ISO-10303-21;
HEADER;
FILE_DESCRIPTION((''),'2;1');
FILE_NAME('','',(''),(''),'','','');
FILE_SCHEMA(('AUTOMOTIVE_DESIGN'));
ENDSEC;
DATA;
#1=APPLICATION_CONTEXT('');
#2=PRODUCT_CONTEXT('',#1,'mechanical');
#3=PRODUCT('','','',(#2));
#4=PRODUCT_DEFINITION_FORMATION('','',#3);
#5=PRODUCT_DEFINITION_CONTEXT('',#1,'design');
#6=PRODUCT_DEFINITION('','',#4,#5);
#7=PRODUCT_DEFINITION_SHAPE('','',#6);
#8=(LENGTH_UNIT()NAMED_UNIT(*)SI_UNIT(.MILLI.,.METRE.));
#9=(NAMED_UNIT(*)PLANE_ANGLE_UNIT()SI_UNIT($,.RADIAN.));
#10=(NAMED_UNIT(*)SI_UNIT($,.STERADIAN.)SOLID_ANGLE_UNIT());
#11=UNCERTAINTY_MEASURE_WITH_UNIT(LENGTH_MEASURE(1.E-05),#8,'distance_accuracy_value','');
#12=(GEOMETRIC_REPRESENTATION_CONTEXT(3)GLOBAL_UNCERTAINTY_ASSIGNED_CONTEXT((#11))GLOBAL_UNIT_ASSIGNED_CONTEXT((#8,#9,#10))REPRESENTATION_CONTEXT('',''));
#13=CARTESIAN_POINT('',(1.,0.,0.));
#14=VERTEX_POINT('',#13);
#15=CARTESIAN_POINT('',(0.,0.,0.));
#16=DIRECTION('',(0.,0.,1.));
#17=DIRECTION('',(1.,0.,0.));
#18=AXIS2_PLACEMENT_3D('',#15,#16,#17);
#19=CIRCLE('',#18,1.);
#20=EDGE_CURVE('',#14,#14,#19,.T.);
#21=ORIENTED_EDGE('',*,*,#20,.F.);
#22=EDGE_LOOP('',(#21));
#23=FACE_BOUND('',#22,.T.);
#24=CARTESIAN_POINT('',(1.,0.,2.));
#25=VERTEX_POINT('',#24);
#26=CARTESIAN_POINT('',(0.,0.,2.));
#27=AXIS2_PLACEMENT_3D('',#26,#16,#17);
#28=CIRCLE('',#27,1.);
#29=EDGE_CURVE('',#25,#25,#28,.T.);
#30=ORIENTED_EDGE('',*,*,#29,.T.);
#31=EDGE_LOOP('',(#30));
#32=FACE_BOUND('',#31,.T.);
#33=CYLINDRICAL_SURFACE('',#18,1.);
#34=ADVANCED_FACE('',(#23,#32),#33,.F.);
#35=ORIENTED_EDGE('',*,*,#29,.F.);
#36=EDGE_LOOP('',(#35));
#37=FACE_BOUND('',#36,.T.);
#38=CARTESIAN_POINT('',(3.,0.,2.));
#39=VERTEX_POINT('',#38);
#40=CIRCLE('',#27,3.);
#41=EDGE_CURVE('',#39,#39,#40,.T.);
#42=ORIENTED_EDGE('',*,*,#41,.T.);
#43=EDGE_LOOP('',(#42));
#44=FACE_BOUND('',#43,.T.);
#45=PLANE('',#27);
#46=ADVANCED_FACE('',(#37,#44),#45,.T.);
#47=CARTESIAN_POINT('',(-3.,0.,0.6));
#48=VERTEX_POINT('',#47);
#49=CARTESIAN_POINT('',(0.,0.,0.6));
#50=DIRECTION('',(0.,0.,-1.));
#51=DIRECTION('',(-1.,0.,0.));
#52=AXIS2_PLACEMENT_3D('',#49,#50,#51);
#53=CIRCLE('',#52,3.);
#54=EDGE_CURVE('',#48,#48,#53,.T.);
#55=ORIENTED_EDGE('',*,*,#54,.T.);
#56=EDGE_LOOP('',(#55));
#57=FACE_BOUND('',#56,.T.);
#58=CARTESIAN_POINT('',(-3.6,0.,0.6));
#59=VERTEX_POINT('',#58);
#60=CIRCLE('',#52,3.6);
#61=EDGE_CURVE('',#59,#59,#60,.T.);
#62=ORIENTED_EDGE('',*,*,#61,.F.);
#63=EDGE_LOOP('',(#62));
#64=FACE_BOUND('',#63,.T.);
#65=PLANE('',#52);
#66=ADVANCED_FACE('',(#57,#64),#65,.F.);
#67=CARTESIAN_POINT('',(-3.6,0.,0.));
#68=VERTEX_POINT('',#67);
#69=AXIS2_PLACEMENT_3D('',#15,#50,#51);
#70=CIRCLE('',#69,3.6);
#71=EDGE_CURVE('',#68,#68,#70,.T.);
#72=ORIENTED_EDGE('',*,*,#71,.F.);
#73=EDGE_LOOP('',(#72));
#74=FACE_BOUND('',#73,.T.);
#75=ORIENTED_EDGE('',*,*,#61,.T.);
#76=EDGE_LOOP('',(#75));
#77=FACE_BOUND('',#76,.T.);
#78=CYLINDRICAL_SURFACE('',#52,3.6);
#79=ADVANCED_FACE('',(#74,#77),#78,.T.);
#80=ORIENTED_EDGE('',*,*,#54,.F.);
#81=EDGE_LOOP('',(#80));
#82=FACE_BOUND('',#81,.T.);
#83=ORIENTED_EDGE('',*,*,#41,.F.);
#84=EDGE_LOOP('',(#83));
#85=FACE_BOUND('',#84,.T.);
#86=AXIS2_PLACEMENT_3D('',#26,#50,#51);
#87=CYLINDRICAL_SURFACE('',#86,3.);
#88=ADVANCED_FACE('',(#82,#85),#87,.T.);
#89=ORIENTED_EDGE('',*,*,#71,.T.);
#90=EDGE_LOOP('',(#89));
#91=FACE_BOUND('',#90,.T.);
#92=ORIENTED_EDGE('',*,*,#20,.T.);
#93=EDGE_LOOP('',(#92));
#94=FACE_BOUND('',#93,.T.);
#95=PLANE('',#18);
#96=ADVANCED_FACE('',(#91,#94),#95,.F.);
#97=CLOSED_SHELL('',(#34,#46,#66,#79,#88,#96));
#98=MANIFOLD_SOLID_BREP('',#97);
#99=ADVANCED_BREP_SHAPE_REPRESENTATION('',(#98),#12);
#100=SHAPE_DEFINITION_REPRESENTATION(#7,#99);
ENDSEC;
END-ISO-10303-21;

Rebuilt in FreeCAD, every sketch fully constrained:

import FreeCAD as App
import Part
import Sketcher

V = App.Vector
Q = App.Units.Quantity

doc = App.newDocument("Part")
params = doc.addObject("Spreadsheet::Sheet", "Params")
for row, (alias, value) in enumerate([
    ("sketch1_diameter", "6 mm"),
    ("pad1_length", "2 mm"),
    ("sketch2_diameter", "7.2 mm"),
    ("pad2_length", "0.6 mm"),
    ("sketch3_diameter", "2 mm"),
], start=1):
    params.set(f"A{row}", alias)
    params.set(f"B{row}", "=" + value)
    params.setAlias(f"B{row}", alias)

body = doc.addObject("PartDesign::Body", "Body")

# Sketch on XY plane
sketch1 = doc.addObject("Sketcher::SketchObject", "Sketch")
body.addObject(sketch1)
sketch1.AttachmentSupport = (doc.XY_Plane, [""])
sketch1.MapMode = "FlatFace"
sketch1.addGeometry(Part.Circle(V(0, 0, 0), V(0, 0, 1), 3), False)
sketch1.addConstraint([
    Sketcher.Constraint("Coincident", 0, 3, -1, 1),
    Sketcher.Constraint("Diameter", 0, Q("6 mm")),
])
sketch1.setExpression("Constraints[1]", "Params.sketch1_diameter")
pad1 = doc.addObject("PartDesign::Pad", "Pad")
body.addObject(pad1)
pad1.Profile = sketch1
pad1.setExpression("Length", "Params.pad1_length")

# Sketch on XY plane
sketch2 = doc.addObject("Sketcher::SketchObject", "Sketch001")
body.addObject(sketch2)
sketch2.AttachmentSupport = (doc.XY_Plane, [""])
sketch2.MapMode = "FlatFace"
sketch2.addGeometry(Part.Circle(V(0, 0, 0), V(0, 0, 1), 3.6), False)
sketch2.addConstraint([
    Sketcher.Constraint("Coincident", 0, 3, -1, 1),
    Sketcher.Constraint("Diameter", 0, Q("7.2 mm")),
])
sketch2.setExpression("Constraints[1]", "Params.sketch2_diameter")
pad2 = doc.addObject("PartDesign::Pad", "Pad001")
body.addObject(pad2)
pad2.Profile = sketch2
pad2.setExpression("Length", "Params.pad2_length")

# Sketch on XY plane
sketch3 = doc.addObject("Sketcher::SketchObject", "Sketch002")
body.addObject(sketch3)
sketch3.AttachmentSupport = (doc.XY_Plane, [""])
sketch3.MapMode = "FlatFace"
sketch3.AttachmentOffset = App.Placement(V(0, 0, 2), App.Rotation())
sketch3.addGeometry(Part.Circle(V(0, 0, 0), V(0, 0, 1), 1), False)
sketch3.addConstraint([
    Sketcher.Constraint("Coincident", 0, 3, -1, 1),
    Sketcher.Constraint("Diameter", 0, Q("2 mm")),
])
sketch3.setExpression("Constraints[1]", "Params.sketch3_diameter")
pocket1 = doc.addObject("PartDesign::Pocket", "Pocket")
body.addObject(pocket1)
pocket1.Profile = sketch3
pocket1.Type = "ThroughAll"
pocket1.Midplane = True

doc.recompute()
